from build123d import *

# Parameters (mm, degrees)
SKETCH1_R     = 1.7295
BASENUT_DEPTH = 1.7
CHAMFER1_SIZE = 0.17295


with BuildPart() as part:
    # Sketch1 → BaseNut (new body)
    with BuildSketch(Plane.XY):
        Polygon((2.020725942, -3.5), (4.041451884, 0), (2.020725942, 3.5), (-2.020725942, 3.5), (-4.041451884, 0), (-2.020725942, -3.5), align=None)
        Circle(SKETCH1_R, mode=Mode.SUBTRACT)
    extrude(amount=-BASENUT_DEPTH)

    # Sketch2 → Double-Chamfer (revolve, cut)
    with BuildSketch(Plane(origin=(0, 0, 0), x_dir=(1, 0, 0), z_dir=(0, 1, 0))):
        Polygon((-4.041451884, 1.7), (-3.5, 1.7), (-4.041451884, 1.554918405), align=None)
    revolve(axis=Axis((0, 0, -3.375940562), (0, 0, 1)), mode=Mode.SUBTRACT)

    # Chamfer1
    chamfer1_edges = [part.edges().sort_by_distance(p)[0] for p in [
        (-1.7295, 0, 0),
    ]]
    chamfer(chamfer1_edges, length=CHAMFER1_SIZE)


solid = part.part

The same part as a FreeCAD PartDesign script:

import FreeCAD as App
import Part
import Sketcher
Q = App.Units.Quantity


def edges_at(feature, points):
    """Names of the edges that pass closest to the given points."""
    edges = feature.Shape.Edges
    near = lambda p: min(range(len(edges)), key=lambda i: edges[i].distToShape(Part.Vertex(*p))[0])
    return sorted({f"Edge{near(p) + 1}" for p in points})


def add_polygon(sketch, points):
    """Adds a closed chain of lines whose ends are joined by coincident constraints."""
    first, n = sketch.GeometryCount, len(points)
    for a, b in zip(points, points[1:] + points[:1]):
        sketch.addGeometry(Part.LineSegment(App.Vector(*a, 0), App.Vector(*b, 0)), False)
    for i in range(n):
        sketch.addConstraint(Sketcher.Constraint("Coincident", first + i, 2, first + (i + 1) % n, 1))

doc = App.newDocument("Part")
body = doc.addObject("PartDesign::Body", "Body")

sketch1 = doc.addObject("Sketcher::SketchObject", "Sketch")
body.addObject(sketch1)
sketch1.AttachmentSupport = (doc.XY_Plane, [""])
sketch1.MapMode = "FlatFace"
add_polygon(sketch1, [(2, -3.5), (4, 0), (2, 3.5), (-2, 3.5), (-4, 0), (-2, -3.5)])
sketch1.addGeometry(Part.Circle(App.Vector(0, 0, 0), App.Vector(0, 0, 1), 1.7), False)
sketch1.addConstraint([
    Sketcher.Constraint("Horizontal", 2),
    Sketcher.Constraint("Horizontal", 5),
    Sketcher.Constraint("Coincident", 6, 3, -1, 1),
    Sketcher.Constraint("Symmetric", 0, 2, 3, 2, -1, 1),
    Sketcher.Constraint("Symmetric", 1, 2, 4, 2, -1, 1),
    Sketcher.Constraint("PointOnObject", 0, 2, -1),
    Sketcher.Constraint("Parallel", 0, 3),
    Sketcher.Constraint("Vertical", 2, 2, 4, 2),
    Sketcher.Constraint("Angle", 0, Q("60 deg")),
    Sketcher.Constraint("Diameter", 6, 3.459),
    Sketcher.Constraint("DistanceY", 4, 2, 2, 2, 7.0),
    Sketcher.Constraint("DistanceX", 2, 2, 2, 1, 4.041452),
])
pad1 = doc.addObject("PartDesign::Pad", "Pad")
body.addObject(pad1)
pad1.Profile = sketch1
pad1.Length = 1.7
pad1.Reversed = True

sketch2 = doc.addObject("Sketcher::SketchObject", "Sketch001")
body.addObject(sketch2)
sketch2.AttachmentSupport = (doc.XZ_Plane, [""])
sketch2.MapMode = "FlatFace"
add_polygon(sketch2, [(-3.5, -1.7), (-4.04, -1.7), (-4.04, -1.55)])
sketch2.addConstraint([
    Sketcher.Constraint("Horizontal", 0),
    Sketcher.Constraint("Vertical", 1),
    Sketcher.Constraint("Angle", 2, Q("-15 deg")),
    Sketcher.Constraint("DistanceY", 0, 2, -1, 1, 1.7),
    Sketcher.Constraint("DistanceX", 2, 2, -1, 1, 3.5),
    Sketcher.Constraint("DistanceX", 0, 2, 0, 1, 0.541452),
])
groove = doc.addObject("PartDesign::Groove", "Groove")
body.addObject(groove)
groove.Profile = sketch2
groove.ReferenceAxis = (sketch2, ["V_Axis"])
groove.Angle = 360
doc.recompute()

chamfer = doc.addObject("PartDesign::Chamfer", "Chamfer")
body.addObject(chamfer)
chamfer.Base = (groove, edges_at(groove, [(-1.73, 0, 0)]))
chamfer.Size = 0.17295

doc.recompute()
